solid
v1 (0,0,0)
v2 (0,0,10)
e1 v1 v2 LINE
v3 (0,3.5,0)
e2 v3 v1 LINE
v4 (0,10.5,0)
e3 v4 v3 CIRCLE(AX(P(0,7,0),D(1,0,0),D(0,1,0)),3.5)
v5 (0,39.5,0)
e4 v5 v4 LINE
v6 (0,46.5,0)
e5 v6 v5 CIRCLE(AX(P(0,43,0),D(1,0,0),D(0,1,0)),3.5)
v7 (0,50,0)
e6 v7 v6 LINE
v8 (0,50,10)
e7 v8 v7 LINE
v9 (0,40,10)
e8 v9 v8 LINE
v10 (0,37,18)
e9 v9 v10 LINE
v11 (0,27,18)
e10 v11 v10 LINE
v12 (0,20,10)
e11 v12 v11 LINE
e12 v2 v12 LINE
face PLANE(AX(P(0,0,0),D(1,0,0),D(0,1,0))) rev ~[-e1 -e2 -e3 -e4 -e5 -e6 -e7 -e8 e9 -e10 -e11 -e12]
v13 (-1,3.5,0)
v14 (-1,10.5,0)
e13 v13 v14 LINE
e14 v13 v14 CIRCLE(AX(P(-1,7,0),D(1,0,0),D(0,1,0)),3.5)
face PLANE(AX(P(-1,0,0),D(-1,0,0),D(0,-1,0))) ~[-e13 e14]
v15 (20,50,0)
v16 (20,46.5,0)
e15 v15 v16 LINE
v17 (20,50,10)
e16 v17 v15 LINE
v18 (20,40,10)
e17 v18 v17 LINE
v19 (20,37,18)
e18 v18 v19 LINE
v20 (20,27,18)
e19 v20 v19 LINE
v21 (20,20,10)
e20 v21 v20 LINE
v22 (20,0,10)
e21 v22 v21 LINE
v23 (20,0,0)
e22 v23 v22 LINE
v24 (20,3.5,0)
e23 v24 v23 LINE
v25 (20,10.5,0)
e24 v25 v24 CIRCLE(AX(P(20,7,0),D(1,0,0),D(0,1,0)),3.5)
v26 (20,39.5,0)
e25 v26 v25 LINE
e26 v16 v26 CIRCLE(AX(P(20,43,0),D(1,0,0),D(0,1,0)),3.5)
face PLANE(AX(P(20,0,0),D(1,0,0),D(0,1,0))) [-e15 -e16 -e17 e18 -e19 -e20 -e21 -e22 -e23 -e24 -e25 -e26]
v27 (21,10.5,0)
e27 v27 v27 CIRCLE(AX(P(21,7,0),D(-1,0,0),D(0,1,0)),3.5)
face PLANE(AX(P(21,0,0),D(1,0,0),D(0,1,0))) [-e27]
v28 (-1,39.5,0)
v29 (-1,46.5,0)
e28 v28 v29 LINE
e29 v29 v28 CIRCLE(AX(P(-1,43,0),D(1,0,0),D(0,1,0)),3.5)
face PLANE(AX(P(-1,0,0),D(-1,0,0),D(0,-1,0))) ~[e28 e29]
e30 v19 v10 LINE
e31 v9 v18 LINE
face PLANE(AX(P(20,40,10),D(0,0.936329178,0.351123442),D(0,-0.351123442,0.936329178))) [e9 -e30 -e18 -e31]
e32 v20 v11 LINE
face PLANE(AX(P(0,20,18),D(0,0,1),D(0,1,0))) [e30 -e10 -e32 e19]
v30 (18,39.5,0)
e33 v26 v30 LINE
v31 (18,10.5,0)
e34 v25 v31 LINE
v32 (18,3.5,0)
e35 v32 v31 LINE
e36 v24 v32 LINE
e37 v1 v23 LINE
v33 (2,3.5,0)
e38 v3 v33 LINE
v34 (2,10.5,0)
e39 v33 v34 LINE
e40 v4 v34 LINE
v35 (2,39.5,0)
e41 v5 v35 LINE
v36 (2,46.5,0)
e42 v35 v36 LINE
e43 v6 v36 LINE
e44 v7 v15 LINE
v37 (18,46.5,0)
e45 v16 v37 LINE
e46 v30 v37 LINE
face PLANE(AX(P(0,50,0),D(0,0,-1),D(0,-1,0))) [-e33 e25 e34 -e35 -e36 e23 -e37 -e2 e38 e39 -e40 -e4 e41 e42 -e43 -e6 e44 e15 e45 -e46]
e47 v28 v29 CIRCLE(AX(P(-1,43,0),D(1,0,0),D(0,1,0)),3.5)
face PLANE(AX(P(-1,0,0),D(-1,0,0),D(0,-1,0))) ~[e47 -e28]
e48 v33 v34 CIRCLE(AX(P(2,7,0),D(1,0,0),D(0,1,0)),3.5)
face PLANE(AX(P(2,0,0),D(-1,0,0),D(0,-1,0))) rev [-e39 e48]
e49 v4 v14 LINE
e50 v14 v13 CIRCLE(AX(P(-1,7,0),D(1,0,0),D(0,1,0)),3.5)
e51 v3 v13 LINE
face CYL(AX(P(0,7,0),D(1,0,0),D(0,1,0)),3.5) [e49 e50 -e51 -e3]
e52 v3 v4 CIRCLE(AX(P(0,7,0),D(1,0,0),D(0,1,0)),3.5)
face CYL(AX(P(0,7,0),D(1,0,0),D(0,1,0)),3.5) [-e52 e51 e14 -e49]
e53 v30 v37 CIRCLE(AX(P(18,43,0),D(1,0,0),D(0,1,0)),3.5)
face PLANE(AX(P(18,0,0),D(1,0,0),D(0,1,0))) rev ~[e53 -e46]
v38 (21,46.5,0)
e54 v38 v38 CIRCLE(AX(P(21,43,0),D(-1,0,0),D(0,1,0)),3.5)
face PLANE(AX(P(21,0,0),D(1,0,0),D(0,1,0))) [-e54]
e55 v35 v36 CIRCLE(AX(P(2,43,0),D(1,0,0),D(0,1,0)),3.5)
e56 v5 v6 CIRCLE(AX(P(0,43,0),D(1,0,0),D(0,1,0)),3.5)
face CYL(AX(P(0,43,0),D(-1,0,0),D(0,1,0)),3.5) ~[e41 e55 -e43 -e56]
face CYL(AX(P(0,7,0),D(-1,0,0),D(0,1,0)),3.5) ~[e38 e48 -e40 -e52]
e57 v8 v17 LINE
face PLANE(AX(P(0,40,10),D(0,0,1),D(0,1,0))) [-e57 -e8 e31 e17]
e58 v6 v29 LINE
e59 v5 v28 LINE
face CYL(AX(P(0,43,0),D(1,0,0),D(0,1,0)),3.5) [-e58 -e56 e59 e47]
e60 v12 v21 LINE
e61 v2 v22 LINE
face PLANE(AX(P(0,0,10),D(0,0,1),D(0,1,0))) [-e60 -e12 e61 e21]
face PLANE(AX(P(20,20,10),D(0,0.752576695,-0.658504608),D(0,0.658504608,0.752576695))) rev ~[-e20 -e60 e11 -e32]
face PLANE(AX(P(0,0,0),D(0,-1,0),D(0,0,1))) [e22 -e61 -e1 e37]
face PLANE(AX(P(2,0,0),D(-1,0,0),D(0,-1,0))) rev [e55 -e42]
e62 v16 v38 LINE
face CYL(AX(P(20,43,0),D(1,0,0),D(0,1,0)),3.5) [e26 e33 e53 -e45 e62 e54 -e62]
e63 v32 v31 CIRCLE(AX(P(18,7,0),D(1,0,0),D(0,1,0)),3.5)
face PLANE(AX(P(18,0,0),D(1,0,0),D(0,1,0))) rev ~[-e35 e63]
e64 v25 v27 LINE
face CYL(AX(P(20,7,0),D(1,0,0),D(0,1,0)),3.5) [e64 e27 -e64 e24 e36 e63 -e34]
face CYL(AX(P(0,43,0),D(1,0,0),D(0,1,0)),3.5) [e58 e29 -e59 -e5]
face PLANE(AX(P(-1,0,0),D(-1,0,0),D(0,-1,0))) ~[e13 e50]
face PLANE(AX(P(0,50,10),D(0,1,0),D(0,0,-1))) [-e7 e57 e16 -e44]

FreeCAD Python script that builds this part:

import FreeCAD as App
import Part
import Sketcher

V = App.Vector
Q = App.Units.Quantity


def add_polygon(sketch, points):
    """Adds a closed chain of lines whose ends are joined by coincident constraints."""
    first, n = sketch.GeometryCount, len(points)
    for a, b in zip(points, points[1:] + points[:1]):
        sketch.addGeometry(Part.LineSegment(App.Vector(*a, 0), App.Vector(*b, 0)), False)
    for i in range(n):
        sketch.addConstraint(Sketcher.Constraint("Coincident", first + i, 2, first + (i + 1) % n, 1))

doc = App.newDocument("Part")
body = doc.addObject("PartDesign::Body", "Body")

# Sketch on YZ plane
sketch1 = doc.addObject("Sketcher::SketchObject", "Sketch")
body.addObject(sketch1)
sketch1.AttachmentSupport = (doc.YZ_Plane, [""])
sketch1.MapMode = "FlatFace"
add_polygon(sketch1, [(0, 10), (0, 0), (50, 0), (50, 10), (40, 10), (40, 18), (20, 18), (20, 10)])  # lines 0-7
sketch1.addConstraint([
    Sketcher.Constraint("Vertical", 0),
    Sketcher.Constraint("Horizontal", 1),
    Sketcher.Constraint("Vertical", 2),
    Sketcher.Constraint("Horizontal", 3),
    Sketcher.Constraint("Vertical", 4),
    Sketcher.Constraint("Horizontal", 5),
    Sketcher.Constraint("Vertical", 6),
    Sketcher.Constraint("Horizontal", 7),
    Sketcher.Constraint("Coincident", 0, 2, -1, 1),
    Sketcher.Constraint("Horizontal", 3, 2, 6, 2),
    Sketcher.Constraint("Equal", 5, 7),
    Sketcher.Constraint("Equal", 3, 0),
    Sketcher.Constraint("DistanceX", 3, 2, 3, 1, Q("10 mm")),
    Sketcher.Constraint("DistanceX", 5, 2, 5, 1, Q("20 mm")),
    Sketcher.Constraint("DistanceY", 4, 1, 4, 2, Q("8 mm")),
])
pad1 = doc.addObject("PartDesign::Pad", "Pad")
body.addObject(pad1)
pad1.Profile = sketch1
pad1.Length = 20

# Sketch on YZ plane
sketch2 = doc.addObject("Sketcher::SketchObject", "Sketch001")
body.addObject(sketch2)
sketch2.AttachmentSupport = (doc.YZ_Plane, [""])
sketch2.MapMode = "FlatFace"
sketch2.AttachmentOffset = App.Placement(V(0, 0, 20), App.Rotation())
sketch2.addGeometry([
    Part.Circle(V(43, 0, 0), V(0, 0, 1), 3.5),
    Part.Circle(V(7, 0, 0), V(0, 0, 1), 3.5),
], False)
sketch2.addConstraint([
    Sketcher.Constraint("Equal", 0, 1),
    Sketcher.Constraint("PointOnObject", 0, 3, -1),
    Sketcher.Constraint("PointOnObject", 1, 3, -1),
    Sketcher.Constraint("Diameter", 0, Q("7 mm")),
    Sketcher.Constraint("DistanceX", -1, 1, 1, 3, Q("7 mm")),
    Sketcher.Constraint("DistanceX", -1, 1, 0, 3, Q("43 mm")),
])
pad2 = doc.addObject("PartDesign::Pad", "Pad001")
body.addObject(pad2)
pad2.Profile = sketch2
pad2.Type = "TwoLengths"
pad2.Length = 1
pad2.Length2 = 2
doc.recompute()

datumplane = doc.addObject("PartDesign::Plane", "DatumPlane")
body.addObject(datumplane)
datumplane.AttachmentSupport = (doc.YZ_Plane, [""])
datumplane.MapMode = "FlatFace"
datumplane.AttachmentOffset = App.Placement(V(0, 0, 10), App.Rotation())
mirrored = doc.addObject("PartDesign::Mirrored", "Mirrored")
body.addObject(mirrored)
mirrored.Originals = [pad2]
mirrored.MirrorPlane = (datumplane, [""])
body.Tip = mirrored

# Sketch on YZ plane
sketch3 = doc.addObject("Sketcher::SketchObject", "Sketch002")
body.addObject(sketch3)
sketch3.AttachmentSupport = (doc.YZ_Plane, [""])
sketch3.MapMode = "FlatFace"
sketch3.AttachmentOffset = App.Placement(V(0, 0, 20), App.Rotation())
add_polygon(sketch3, [(37, 18), (40, 10), (40, 18)])  # lines 0-2
add_polygon(sketch3, [(20, 10), (27, 18), (20, 18)])  # lines 3-5
sketch3.addConstraint([
    Sketcher.Constraint("Vertical", 1),
    Sketcher.Constraint("Horizontal", 2),
    Sketcher.Constraint("Horizontal", 4),
    Sketcher.Constraint("Vertical", 5),
    Sketcher.Constraint("Horizontal", 2, 2, 3, 2),
    Sketcher.Constraint("Horizontal", 0, 2, 5, 2),
    Sketcher.Constraint("DistanceX", 2, 2, 2, 1, Q("3 mm")),
    Sketcher.Constraint("DistanceX", 4, 2, 4, 1, Q("7 mm")),
    Sketcher.Constraint("DistanceY", 1, 1, 1, 2, Q("8 mm")),
    Sketcher.Constraint("DistanceX", -1, 1, 0, 2, Q("40 mm")),
    Sketcher.Constraint("DistanceY", -1, 1, 0, 2, Q("10 mm")),
    Sketcher.Constraint("DistanceX", -1, 1, 3, 2, Q("27 mm")),
])
pocket1 = doc.addObject("PartDesign::Pocket", "Pocket")
body.addObject(pocket1)
pocket1.Profile = sketch3
pocket1.Length = 20

doc.recompute()
